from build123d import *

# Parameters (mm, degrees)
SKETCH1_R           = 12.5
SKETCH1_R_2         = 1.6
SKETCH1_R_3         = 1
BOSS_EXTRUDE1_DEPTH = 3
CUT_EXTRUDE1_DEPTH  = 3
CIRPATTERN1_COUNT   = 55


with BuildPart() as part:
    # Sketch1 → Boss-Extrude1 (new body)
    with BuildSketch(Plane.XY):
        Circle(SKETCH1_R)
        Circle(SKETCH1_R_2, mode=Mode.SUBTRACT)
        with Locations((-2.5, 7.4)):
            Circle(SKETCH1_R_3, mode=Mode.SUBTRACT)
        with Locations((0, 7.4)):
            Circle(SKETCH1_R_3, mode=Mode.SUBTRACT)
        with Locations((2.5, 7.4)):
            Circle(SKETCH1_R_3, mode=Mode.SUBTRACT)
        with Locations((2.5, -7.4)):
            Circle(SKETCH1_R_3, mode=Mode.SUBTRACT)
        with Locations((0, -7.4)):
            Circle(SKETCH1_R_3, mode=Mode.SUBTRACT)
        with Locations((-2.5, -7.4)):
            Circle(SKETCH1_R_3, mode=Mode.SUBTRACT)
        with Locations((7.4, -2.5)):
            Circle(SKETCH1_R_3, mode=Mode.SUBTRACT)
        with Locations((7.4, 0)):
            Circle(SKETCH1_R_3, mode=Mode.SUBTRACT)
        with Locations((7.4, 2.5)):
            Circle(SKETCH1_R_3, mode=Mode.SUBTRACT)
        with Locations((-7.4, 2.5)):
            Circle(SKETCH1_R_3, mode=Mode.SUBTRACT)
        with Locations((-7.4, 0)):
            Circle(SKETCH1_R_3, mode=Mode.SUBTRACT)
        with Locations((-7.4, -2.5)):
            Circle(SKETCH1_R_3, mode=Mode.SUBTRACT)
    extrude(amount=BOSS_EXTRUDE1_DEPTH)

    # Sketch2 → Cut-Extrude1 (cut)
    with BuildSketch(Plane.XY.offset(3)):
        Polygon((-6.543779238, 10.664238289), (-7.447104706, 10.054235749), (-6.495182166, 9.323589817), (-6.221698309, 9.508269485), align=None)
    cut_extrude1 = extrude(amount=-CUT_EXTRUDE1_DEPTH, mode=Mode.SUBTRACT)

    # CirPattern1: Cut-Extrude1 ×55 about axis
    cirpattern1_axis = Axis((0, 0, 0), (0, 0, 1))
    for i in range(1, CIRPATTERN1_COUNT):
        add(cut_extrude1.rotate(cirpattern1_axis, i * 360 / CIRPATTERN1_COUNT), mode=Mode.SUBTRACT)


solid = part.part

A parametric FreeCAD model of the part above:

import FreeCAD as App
import Part
import Sketcher

doc = App.newDocument("Part")
params = doc.addObject("Spreadsheet::Sheet", "Params")
for row, (alias, value) in enumerate([
    ("sketch1_diameter", "25 mm"),
    ("sketch1_diameter2", "2 mm"),
    ("sketch1_diameter3", "3.2 mm"),
    ("pad1_length", "3 mm"),
    ("sketch2_length", "1.2 mm"),
    ("sketch2_length2", "1.09 mm"),
    ("sketch2_length3", "0.33 mm"),
    ("pocket1_length", "3 mm"),
], start=1):
    params.set(f"A{row}", alias)
    params.set(f"B{row}", "=" + value)
    params.setAlias(f"B{row}", alias)

body = doc.addObject("PartDesign::Body", "Body")

# Sketch on XY plane
sketch1 = body.newObject("Sketcher::SketchObject", "Sketch")
sketch1.AttachmentSupport = (doc.getObject("XY_Plane"), [""])
sketch1.MapMode = "FlatFace"
sketch1.addGeometry(Part.Circle(App.Vector(0, 0, 0), App.Vector(0, 0, 1), 12.5), False)
sketch1.addGeometry(Part.Circle(App.Vector(-2.5, -7.4, 0), App.Vector(0, 0, 1), 1), False)
sketch1.addGeometry(Part.Circle(App.Vector(-7.4, -2.5, 0), App.Vector(0, 0, 1), 1), False)
sketch1.addGeometry(Part.Circle(App.Vector(0, -7.4, 0), App.Vector(0, 0, 1), 1), False)
sketch1.addGeometry(Part.Circle(App.Vector(2.5, -7.4, 0), App.Vector(0, 0, 1), 1), False)
sketch1.addGeometry(Part.Circle(App.Vector(7.4, -2.5, 0), App.Vector(0, 0, 1), 1), False)
sketch1.addGeometry(Part.Circle(App.Vector(-7.4, 0, 0), App.Vector(0, 0, 1), 1), False)
sketch1.addGeometry(Part.Circle(App.Vector(-7.4, 2.5, 0), App.Vector(0, 0, 1), 1), False)
sketch1.addGeometry(Part.Circle(App.Vector(-2.5, 7.4, 0), App.Vector(0, 0, 1), 1), False)
sketch1.addGeometry(Part.Circle(App.Vector(0, 0, 0), App.Vector(0, 0, 1), 1.6), False)
sketch1.addGeometry(Part.Circle(App.Vector(7.4, 0, 0), App.Vector(0, 0, 1), 1), False)
sketch1.addGeometry(Part.Circle(App.Vector(7.4, 2.5, 0), App.Vector(0, 0, 1), 1), False)
sketch1.addGeometry(Part.Circle(App.Vector(0, 7.4, 0), App.Vector(0, 0, 1), 1), False)
sketch1.addGeometry(Part.Circle(App.Vector(2.5, 7.4, 0), App.Vector(0, 0, 1), 1), False)
sketch1.addConstraint(Sketcher.Constraint("Coincident", 0, 3, -1, 1))
sketch1.addConstraint(Sketcher.Constraint("Coincident", 9, 3, -1, 1))
sketch1.addConstraint(Sketcher.Constraint("Equal", 1, 2))
sketch1.addConstraint(Sketcher.Constraint("Equal", 2, 3))
sketch1.addConstraint(Sketcher.Constraint("Equal", 3, 4))
sketch1.addConstraint(Sketcher.Constraint("Equal", 4, 5))
sketch1.addConstraint(Sketcher.Constraint("Equal", 5, 6))
sketch1.addConstraint(Sketcher.Constraint("Equal", 6, 7))
sketch1.addConstraint(Sketcher.Constraint("Equal", 7, 8))
sketch1.addConstraint(Sketcher.Constraint("Equal", 8, 10))
sketch1.addConstraint(Sketcher.Constraint("Equal", 10, 11))
sketch1.addConstraint(Sketcher.Constraint("Equal", 11, 12))
sketch1.addConstraint(Sketcher.Constraint("Equal", 12, 13))
sketch1.addConstraint(Sketcher.Constraint("Symmetric", 5, 3, 7, 3, -1, 1))
sketch1.addConstraint(Sketcher.Constraint("Symmetric", 4, 3, 8, 3, -1, 1))
sketch1.addConstraint(Sketcher.Constraint("Symmetric", 6, 3, 10, 3, -1, 1))
sketch1.addConstraint(Sketcher.Constraint("Symmetric", 2, 3, 11, 3, -1, 1))
sketch1.addConstraint(Sketcher.Constraint("Symmetric", 3, 3, 12, 3, -1, 1))
sketch1.addConstraint(Sketcher.Constraint("Symmetric", 1, 3, 13, 3, -1, 1))
sketch1.addConstraint(Sketcher.Constraint("Symmetric", 1, 3, 4, 3, -2))
sketch1.addConstraint(Sketcher.Constraint("Symmetric", 2, 3, 5, 3, -2))
sketch1.addConstraint(Sketcher.Constraint("PointOnObject", 3, 3, -2))
sketch1.addConstraint(Sketcher.Constraint("PointOnObject", 6, 3, -1))
sketch1.addConstraint(Sketcher.Constraint("Horizontal", 1, 3, 3, 3))
sketch1.addConstraint(Sketcher.Constraint("Vertical", 2, 3, 6, 3))
sketch1.addConstraint(Sketcher.Constraint("Diameter", 0, 25.0))
sketch1.addConstraint(Sketcher.Constraint("Diameter", 1, 2.0))
sketch1.addConstraint(Sketcher.Constraint("Diameter", 9, 3.2))
sketch1.addConstraint(Sketcher.Constraint("DistanceX", 1, 3, 4, 3, 5.0))
sketch1.addConstraint(Sketcher.Constraint("DistanceY", 2, 3, 7, 3, 5.0))
sketch1.addConstraint(Sketcher.Constraint("DistanceY", 1, 3, -1, 1, 7.4))
sketch1.addConstraint(Sketcher.Constraint("DistanceX", 2, 3, -1, 1, 7.4))
sketch1.setExpression("Constraints[25]", "Params.sketch1_diameter")
sketch1.setExpression("Constraints[26]", "Params.sketch1_diameter2")
sketch1.setExpression("Constraints[27]", "Params.sketch1_diameter3")
pad1 = body.newObject("PartDesign::Pad", "Pad")
pad1.Profile = sketch1
pad1.setExpression("Length", "Params.pad1_length")

# Sketch on XY plane
sketch2 = body.newObject("Sketcher::SketchObject", "Sketch001")
sketch2.AttachmentSupport = (doc.getObject("XY_Plane"), [""])
sketch2.MapMode = "FlatFace"
sketch2.AttachmentOffset = App.Placement(App.Vector(0, 0, 3), App.Rotation())
sketch2.addGeometry(Part.LineSegment(App.Vector(-6.543779, 10.664238, 0), App.Vector(-7.447105, 10.054236, 0)), False)
sketch2.addGeometry(Part.LineSegment(App.Vector(-7.447105, 10.054236, 0), App.Vector(-6.495182, 9.32359, 0)), False)
sketch2.addGeometry(Part.LineSegment(App.Vector(-6.495182, 9.32359, 0), App.Vector(-6.221698, 9.508269, 0)), False)
sketch2.addGeometry(Part.LineSegment(App.Vector(-6.221698, 9.508269, 0), App.Vector(-6.543779, 10.664238, 0)), False)
sketch2.addConstraint(Sketcher.Constraint("Coincident", 0, 2, 1, 1))
sketch2.addConstraint(Sketcher.Constraint("Coincident", 1, 2, 2, 1))
sketch2.addConstraint(Sketcher.Constraint("Coincident", 2, 2, 3, 1))
sketch2.addConstraint(Sketcher.Constraint("Coincident", 3, 2, 0, 1))
sketch2.addConstraint(Sketcher.Constraint("Parallel", 0, 2))
sketch2.addConstraint(Sketcher.Constraint("Equal", 1, 3))
sketch2.addConstraint(Sketcher.Constraint("Distance", 1, 1.2))
sketch2.addConstraint(Sketcher.Constraint("Distance", 0, 1.09))
sketch2.addConstraint(Sketcher.Constraint("Distance", 2, 0.33))
sketch2.addConstraint(Sketcher.Constraint("DistanceX", 2, 2, -1, 1, 6.221698))
sketch2.addConstraint(Sketcher.Constraint("DistanceY", -1, 1, 1, 2, 9.32359))
sketch2.addConstraint(Sketcher.Constraint("DistanceY", -1, 1, 2, 2, 9.508269))
sketch2.setExpression("Constraints[6]", "Params.sketch2_length")
sketch2.setExpression("Constraints[7]", "Params.sketch2_length2")
sketch2.setExpression("Constraints[8]", "Params.sketch2_length3")
pocket1 = body.newObject("PartDesign::Pocket", "Pocket")
pocket1.Profile = sketch2
pocket1.setExpression("Length", "Params.pocket1_length")
doc.recompute()

polarpattern = body.newObject("PartDesign::PolarPattern", "PolarPattern")
polarpattern.Originals = [pocket1]
polarpattern.Axis = (doc.getObject("Z_Axis"), [""])
polarpattern.Angle = 360
polarpattern.Occurrences = 55
body.Tip = polarpattern

doc.recompute()
